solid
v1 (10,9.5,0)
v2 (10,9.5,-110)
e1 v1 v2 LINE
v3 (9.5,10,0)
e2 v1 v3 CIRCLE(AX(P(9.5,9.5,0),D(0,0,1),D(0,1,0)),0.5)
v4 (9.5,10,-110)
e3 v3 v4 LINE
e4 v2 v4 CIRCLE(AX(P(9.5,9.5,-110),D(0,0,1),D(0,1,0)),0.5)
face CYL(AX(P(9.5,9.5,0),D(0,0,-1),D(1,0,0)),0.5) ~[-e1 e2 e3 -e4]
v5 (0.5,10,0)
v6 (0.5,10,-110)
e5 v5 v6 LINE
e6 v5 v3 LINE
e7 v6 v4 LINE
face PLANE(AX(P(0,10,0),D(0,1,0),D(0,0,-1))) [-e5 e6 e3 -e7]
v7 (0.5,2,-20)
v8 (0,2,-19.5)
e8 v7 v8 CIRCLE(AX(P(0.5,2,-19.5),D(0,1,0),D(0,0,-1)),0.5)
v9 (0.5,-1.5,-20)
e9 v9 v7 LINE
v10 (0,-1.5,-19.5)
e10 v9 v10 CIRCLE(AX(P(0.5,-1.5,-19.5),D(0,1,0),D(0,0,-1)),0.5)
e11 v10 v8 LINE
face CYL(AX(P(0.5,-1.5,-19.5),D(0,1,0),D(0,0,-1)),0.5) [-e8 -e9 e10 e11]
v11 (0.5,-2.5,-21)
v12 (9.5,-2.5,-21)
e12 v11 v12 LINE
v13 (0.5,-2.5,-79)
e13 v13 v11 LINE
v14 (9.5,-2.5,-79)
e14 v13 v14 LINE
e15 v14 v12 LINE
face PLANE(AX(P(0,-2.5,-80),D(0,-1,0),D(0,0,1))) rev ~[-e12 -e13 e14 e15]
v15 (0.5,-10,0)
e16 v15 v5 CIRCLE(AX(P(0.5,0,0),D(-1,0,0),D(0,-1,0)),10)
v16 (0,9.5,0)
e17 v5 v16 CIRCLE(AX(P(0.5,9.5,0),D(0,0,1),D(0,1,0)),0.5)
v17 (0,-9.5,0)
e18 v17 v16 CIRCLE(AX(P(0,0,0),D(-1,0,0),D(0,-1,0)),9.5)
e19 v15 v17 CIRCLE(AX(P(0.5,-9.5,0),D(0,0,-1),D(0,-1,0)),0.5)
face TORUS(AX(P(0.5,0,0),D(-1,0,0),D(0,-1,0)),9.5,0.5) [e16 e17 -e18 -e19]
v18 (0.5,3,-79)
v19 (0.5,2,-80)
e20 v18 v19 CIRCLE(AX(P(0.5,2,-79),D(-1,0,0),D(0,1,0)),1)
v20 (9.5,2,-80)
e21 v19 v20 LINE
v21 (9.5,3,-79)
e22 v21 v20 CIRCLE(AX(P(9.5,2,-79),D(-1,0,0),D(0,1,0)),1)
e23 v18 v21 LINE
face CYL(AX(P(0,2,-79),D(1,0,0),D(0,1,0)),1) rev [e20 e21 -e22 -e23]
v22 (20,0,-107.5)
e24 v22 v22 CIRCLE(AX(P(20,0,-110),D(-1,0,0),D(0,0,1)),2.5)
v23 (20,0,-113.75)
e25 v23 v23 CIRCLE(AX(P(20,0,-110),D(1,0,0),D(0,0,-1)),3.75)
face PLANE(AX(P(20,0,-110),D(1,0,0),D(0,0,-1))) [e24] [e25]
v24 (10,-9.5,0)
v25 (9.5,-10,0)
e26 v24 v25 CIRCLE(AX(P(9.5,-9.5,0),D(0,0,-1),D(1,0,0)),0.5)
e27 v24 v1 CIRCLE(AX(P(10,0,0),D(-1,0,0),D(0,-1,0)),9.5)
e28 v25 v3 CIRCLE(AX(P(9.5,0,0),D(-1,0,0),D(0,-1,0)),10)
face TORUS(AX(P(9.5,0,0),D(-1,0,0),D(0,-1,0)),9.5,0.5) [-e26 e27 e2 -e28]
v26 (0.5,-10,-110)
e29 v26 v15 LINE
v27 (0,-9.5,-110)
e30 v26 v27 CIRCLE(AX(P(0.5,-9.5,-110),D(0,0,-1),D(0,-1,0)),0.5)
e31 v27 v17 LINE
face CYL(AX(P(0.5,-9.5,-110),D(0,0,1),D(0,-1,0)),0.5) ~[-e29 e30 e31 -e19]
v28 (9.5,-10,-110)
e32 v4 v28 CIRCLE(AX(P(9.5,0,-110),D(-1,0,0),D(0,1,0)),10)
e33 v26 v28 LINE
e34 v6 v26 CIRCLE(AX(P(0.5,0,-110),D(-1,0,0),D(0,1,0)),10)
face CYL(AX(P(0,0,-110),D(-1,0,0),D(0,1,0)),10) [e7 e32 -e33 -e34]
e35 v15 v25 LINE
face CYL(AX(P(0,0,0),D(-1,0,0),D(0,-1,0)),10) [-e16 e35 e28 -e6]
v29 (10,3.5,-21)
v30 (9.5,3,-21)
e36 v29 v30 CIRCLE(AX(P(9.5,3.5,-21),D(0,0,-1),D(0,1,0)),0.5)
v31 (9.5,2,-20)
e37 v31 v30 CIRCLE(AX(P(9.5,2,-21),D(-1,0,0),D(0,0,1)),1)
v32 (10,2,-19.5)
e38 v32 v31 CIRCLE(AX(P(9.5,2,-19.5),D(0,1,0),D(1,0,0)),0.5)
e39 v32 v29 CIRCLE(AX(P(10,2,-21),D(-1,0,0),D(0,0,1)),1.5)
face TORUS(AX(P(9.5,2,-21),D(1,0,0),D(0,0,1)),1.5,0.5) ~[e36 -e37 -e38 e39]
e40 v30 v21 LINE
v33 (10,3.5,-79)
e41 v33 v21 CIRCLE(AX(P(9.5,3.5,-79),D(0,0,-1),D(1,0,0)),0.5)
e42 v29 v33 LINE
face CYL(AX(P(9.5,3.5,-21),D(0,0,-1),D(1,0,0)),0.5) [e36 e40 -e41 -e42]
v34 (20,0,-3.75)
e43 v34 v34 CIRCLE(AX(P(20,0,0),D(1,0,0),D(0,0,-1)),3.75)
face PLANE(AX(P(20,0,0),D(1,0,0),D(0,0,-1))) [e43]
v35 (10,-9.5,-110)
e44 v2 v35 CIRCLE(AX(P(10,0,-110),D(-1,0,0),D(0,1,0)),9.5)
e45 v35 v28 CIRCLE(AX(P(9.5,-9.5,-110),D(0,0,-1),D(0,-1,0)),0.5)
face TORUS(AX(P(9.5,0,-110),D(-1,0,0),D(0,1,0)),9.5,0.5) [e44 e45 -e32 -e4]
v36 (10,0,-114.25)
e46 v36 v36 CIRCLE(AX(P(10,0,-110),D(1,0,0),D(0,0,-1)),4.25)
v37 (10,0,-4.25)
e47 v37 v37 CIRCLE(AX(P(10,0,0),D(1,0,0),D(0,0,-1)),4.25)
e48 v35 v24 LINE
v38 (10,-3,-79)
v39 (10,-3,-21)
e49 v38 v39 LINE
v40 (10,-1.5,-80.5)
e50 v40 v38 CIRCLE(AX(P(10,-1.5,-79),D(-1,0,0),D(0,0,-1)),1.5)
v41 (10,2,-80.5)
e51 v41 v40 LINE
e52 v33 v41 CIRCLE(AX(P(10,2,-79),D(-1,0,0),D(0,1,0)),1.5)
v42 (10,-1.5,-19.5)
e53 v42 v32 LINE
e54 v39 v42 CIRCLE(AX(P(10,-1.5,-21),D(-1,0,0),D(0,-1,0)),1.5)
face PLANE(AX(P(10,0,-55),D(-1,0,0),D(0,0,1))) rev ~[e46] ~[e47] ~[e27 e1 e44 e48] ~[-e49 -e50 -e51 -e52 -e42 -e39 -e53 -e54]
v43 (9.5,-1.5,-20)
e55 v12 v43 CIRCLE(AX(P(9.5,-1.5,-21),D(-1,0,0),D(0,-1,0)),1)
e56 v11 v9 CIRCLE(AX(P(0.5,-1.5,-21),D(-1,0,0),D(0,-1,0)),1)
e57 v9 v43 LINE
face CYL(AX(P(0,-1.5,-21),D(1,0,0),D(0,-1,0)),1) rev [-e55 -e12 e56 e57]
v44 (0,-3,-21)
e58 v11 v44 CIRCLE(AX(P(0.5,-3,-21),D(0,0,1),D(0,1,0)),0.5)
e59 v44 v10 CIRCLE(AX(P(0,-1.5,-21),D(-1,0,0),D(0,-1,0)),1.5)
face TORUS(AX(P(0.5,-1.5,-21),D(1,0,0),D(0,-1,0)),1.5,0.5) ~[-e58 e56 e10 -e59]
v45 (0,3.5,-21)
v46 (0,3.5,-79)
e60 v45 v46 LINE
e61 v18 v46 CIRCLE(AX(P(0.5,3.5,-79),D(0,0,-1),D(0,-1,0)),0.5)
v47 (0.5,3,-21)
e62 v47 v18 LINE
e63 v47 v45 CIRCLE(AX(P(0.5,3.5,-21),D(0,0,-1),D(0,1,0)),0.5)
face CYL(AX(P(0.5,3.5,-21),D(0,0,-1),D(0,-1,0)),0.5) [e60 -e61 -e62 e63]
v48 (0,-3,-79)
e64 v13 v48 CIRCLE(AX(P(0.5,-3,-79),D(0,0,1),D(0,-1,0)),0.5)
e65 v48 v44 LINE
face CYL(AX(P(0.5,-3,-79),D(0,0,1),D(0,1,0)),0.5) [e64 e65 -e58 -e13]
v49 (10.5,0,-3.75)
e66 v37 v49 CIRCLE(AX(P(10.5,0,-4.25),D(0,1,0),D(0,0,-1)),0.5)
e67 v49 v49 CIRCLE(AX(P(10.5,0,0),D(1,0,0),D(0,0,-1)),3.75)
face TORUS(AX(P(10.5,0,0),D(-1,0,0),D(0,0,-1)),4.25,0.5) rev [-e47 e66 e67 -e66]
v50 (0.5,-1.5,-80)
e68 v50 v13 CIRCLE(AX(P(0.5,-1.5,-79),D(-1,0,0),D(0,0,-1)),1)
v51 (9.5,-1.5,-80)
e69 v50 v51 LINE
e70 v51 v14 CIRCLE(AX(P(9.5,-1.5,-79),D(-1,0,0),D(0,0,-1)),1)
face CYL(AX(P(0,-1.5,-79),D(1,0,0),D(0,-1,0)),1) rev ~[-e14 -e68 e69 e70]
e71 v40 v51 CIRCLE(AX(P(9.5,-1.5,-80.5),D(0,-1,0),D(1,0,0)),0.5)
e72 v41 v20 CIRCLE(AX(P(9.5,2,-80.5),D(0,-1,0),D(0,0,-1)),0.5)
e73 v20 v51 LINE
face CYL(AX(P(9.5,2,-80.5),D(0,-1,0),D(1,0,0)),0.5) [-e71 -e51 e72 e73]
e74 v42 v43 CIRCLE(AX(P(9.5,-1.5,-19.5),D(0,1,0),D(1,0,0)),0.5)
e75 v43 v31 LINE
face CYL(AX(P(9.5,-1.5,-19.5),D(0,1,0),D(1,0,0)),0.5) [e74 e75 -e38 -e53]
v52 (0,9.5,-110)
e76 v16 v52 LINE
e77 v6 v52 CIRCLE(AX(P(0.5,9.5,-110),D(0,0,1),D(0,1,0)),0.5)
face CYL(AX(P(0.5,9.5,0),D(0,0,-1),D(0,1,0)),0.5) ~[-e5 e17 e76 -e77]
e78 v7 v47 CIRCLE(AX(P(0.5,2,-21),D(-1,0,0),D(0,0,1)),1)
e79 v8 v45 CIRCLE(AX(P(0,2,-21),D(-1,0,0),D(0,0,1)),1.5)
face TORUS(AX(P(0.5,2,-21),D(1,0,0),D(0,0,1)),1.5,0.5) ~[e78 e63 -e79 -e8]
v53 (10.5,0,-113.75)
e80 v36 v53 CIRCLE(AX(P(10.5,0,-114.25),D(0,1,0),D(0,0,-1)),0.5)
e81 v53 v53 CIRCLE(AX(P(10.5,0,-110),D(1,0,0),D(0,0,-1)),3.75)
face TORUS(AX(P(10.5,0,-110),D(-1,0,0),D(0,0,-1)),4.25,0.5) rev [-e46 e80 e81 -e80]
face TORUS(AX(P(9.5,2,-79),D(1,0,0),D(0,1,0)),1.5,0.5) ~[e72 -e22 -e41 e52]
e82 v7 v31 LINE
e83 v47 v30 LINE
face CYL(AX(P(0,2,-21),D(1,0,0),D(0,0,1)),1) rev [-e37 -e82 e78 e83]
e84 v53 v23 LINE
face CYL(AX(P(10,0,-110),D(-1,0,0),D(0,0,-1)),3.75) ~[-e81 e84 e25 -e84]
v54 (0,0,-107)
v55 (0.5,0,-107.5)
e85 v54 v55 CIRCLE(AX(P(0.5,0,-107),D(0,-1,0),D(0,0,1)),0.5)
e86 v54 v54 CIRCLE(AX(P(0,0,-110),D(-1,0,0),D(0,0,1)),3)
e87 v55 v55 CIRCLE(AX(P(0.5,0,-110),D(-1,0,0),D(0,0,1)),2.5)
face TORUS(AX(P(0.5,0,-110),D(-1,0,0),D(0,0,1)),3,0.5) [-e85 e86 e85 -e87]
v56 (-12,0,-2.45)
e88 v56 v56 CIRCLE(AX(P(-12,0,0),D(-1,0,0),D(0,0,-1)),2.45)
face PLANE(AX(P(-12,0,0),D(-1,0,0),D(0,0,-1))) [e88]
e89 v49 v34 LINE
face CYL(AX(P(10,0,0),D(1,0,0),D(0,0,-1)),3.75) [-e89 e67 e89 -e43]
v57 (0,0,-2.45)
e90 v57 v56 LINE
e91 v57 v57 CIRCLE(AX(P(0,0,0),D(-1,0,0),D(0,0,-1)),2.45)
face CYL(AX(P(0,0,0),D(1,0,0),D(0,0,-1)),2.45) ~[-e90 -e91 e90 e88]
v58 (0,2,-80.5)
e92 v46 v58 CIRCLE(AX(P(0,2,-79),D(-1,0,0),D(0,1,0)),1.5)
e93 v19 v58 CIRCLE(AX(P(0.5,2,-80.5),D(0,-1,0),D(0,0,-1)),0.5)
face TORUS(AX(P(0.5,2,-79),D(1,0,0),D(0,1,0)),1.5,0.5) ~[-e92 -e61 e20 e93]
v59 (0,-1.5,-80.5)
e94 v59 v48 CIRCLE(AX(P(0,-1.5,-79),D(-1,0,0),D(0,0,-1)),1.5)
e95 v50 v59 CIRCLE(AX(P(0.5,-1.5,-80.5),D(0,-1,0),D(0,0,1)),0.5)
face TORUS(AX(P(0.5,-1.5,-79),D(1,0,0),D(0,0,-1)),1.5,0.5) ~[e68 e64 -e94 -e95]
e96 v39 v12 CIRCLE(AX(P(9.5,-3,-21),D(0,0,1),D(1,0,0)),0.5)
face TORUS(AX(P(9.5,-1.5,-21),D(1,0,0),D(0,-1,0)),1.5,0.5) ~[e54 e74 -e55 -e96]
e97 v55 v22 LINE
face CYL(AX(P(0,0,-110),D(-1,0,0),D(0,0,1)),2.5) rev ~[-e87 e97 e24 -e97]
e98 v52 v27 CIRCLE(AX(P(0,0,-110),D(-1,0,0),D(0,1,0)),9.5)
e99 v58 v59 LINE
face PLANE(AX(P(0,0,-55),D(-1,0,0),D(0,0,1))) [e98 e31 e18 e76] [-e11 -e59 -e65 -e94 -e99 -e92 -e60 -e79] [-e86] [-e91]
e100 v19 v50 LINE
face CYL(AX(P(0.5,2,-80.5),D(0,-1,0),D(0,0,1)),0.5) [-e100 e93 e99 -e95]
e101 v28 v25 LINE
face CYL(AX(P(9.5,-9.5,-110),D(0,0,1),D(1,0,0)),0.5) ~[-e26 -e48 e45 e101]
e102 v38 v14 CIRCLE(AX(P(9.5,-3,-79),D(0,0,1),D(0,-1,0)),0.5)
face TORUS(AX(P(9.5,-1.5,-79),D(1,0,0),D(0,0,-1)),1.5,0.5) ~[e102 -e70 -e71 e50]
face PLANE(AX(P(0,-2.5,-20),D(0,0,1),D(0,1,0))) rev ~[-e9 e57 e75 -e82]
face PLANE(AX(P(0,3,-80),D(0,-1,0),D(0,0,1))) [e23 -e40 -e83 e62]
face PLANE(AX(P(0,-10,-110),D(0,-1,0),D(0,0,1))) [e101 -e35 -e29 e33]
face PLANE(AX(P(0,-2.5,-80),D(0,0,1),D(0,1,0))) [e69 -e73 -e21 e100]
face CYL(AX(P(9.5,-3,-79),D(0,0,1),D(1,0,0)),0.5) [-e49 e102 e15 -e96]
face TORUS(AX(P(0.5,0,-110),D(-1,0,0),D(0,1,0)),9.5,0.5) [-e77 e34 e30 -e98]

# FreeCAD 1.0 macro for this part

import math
import FreeCAD as App
import Part
import Sketcher
from FreeCAD import Vector


def edges_at(feature, points):
    """Names of the edges that pass closest to the given points."""
    edges = feature.Shape.Edges
    near = lambda p: min(range(len(edges)), key=lambda i: edges[i].distToShape(Part.Vertex(*p))[0])
    return sorted({f"Edge{near(p) + 1}" for p in points})


def add_polygon(sketch, points):
    """Adds a closed chain of lines whose ends are joined by coincident constraints."""
    first, n = sketch.GeometryCount, len(points)
    for a, b in zip(points, points[1:] + points[:1]):
        sketch.addGeometry(Part.LineSegment(App.Vector(*a, 0), App.Vector(*b, 0)), False)
    for i in range(n):
        sketch.addConstraint(Sketcher.Constraint("Coincident", first + i, 2, first + (i + 1) % n, 1))

doc = App.newDocument("Part")
params = doc.addObject("Spreadsheet::Sheet", "Params")
for row, (alias, value) in enumerate([
    ("sketch1_radius", "10 mm"),
    ("sketch1_diameter", "7.5 mm"),
    ("sketch1_height", "110 mm"),
    ("pad1_length", "10 mm"),
    ("sketch2_diameter", "7.5 mm"),
    ("pad2_length", "20 mm"),
    ("sketch3_diameter", "5 mm"),
    ("sketch4_height", "60 mm"),
    ("sketch4_width", "5.5 mm"),
    ("pocket2_length", "10 mm"),
    ("fillet_radius", "1 mm"),
    ("fillet2_radius", "0.5 mm"),
    ("sketch5_diameter", "4.9 mm"),
    ("pad3_length", "12 mm"),
], start=1):
    params.set(f"A{row}", alias)
    params.set(f"B{row}", "=" + value)
    params.setAlias(f"B{row}", alias)

body = doc.addObject("PartDesign::Body", "Body")

sketch1 = body.newObject("Sketcher::SketchObject", "Sketch")
sketch1.AttachmentSupport = (doc.getObject("YZ_Plane"), [""])
sketch1.MapMode = "FlatFace"
sketch1.addGeometry([
    Part.LineSegment(Vector(10, -110, 0), Vector(10, 0, 0)),
    Part.ArcOfCircle(Part.Circle(Vector(0, 0, 0), Vector(0, 0, 1), 10), math.radians(0), math.radians(180)),
    Part.LineSegment(Vector(-10, 0, 0), Vector(-10, -110, 0)),
    Part.ArcOfCircle(Part.Circle(Vector(0, -110, 0), Vector(0, 0, 1), 10), math.radians(180), math.radians(360)),
    Part.Circle(Vector(0, -110, 0), Vector(0, 0, 1), 3.8),
    Part.Circle(Vector(0, 0, 0), Vector(0, 0, 1), 3.8),
], False)
sketch1.addConstraint([
    Sketcher.Constraint("Tangent", 0, 2, 1, 1),
    Sketcher.Constraint("Tangent", 1, 2, 2, 1),
    Sketcher.Constraint("Tangent", 2, 2, 3, 1),
    Sketcher.Constraint("Tangent", 3, 2, 0, 1),
    Sketcher.Constraint("Vertical", 0),
    Sketcher.Constraint("Vertical", 2),
    Sketcher.Constraint("Coincident", 1, 3, -1, 1),
    Sketcher.Constraint("Coincident", 5, 3, -1, 1),
    Sketcher.Constraint("Coincident", 4, 3, 3, 3),
    Sketcher.Constraint("Equal", 4, 5),
    Sketcher.Constraint("Radius", 1, 10.0),
    Sketcher.Constraint("Diameter", 4, 7.5),
    Sketcher.Constraint("DistanceY", 0, 1, 0, 2, 110.0),
])
sketch1.setExpression("Constraints[10]", "Params.sketch1_radius")
sketch1.setExpression("Constraints[11]", "Params.sketch1_diameter")
sketch1.setExpression("Constraints[12]", "Params.sketch1_height")
pad1 = body.newObject("PartDesign::Pad", "Pad")
pad1.Profile = sketch1
pad1.setExpression("Length", "Params.pad1_length")

sketch2 = body.newObject("Sketcher::SketchObject", "Sketch001")
sketch2.AttachmentSupport = (doc.getObject("YZ_Plane"), [""])
sketch2.MapMode = "FlatFace"
sketch2.AttachmentOffset = App.Placement(Vector(0, 0, 10), App.Rotation())
sketch2.addGeometry([
    Part.Circle(Vector(0, -110, 0), Vector(0, 0, 1), 3.8),
    Part.Circle(Vector(0, 0, 0), Vector(0, 0, 1), 3.8),
], False)
sketch2.addConstraint([
    Sketcher.Constraint("Coincident", 1, 3, -1, 1),
    Sketcher.Constraint("Equal", 0, 1),
    Sketcher.Constraint("PointOnObject", 0, 3, -2),
    Sketcher.Constraint("Diameter", 0, 7.5),
    Sketcher.Constraint("DistanceY", 0, 3, -1, 1, 110.0),
])
sketch2.setExpression("Constraints[3]", "Params.sketch2_diameter")
pad2 = body.newObject("PartDesign::Pad", "Pad001")
pad2.Profile = sketch2
pad2.setExpression("Length", "Params.pad2_length")
pad2.Midplane = True

sketch3 = body.newObject("Sketcher::SketchObject", "Sketch002")
sketch3.AttachmentSupport = (doc.getObject("YZ_Plane"), [""])
sketch3.MapMode = "FlatFace"
sketch3.addGeometry(Part.Circle(Vector(0, -110, 0), Vector(0, 0, 1), 2.5), False)
sketch3.addConstraint([
    Sketcher.Constraint("PointOnObject", 0, 3, -2),
    Sketcher.Constraint("Diameter", 0, 5.0),
    Sketcher.Constraint("DistanceY", 0, 3, -1, 1, 110.0),
])
sketch3.setExpression("Constraints[1]", "Params.sketch3_diameter")
pocket1 = body.newObject("PartDesign::Pocket", "Pocket")
pocket1.Profile = sketch3
pocket1.Type = "ThroughAll"
pocket1.Reversed = True

sketch4 = body.newObject("Sketcher::SketchObject", "Sketch003")
sketch4.AttachmentSupport = (doc.getObject("YZ_Plane"), [""])
sketch4.MapMode = "FlatFace"
add_polygon(sketch4, [(3, -80), (-2, -80), (-2, -20), (3, -20)])
sketch4.addConstraint([
    Sketcher.Constraint("Horizontal", 0),
    Sketcher.Constraint("Vertical", 1),
    Sketcher.Constraint("Horizontal", 2),
    Sketcher.Constraint("Vertical", 3),
    Sketcher.Constraint("DistanceY", 1, 1, 1, 2, 60.0),
    Sketcher.Constraint("DistanceX", 0, 2, 0, 1, 5.5),
    Sketcher.Constraint("DistanceY", 0, 2, -1, 1, 80.0),
    Sketcher.Constraint("DistanceX", -1, 1, 2, 2, 3.0),
])
sketch4.setExpression("Constraints[8]", "Params.sketch4_height")
sketch4.setExpression("Constraints[9]", "Params.sketch4_width")
pocket2 = body.newObject("PartDesign::Pocket", "Pocket001")
pocket2.Profile = sketch4
pocket2.setExpression("Length", "Params.pocket2_length")
pocket2.Reversed = True
doc.recompute()

fillet = body.newObject("PartDesign::Fillet", "Fillet")
fillet.Base = (pocket2, edges_at(pocket2, [
    (5, -2.5, -80),
    (5, 3, -80),
    (5, 3, -20),
    (5, -2.5, -20),
]))
fillet.setExpression("Radius", "Params.fillet_radius")
doc.recompute()

fillet2 = body.newObject("PartDesign::Fillet", "Fillet001")
fillet2.Base = (fillet, edges_at(fillet, [
    (10, 0, 3.75),
    (10, 0, -120),
    (10, 0, -106.25),
    (10, 10, -55),
    (0, 0, -112.5),
    (10, 0, 10),
    (0, 10, -55),
    (0, 0, -120),
    (0, 0.25, -20),
    (10, 0.25, -20),
    (0, -10, -55),
    (0, -2.5, -50),
    (10, -2.5, -50),
    (0, 3, -50),
    (0, 0, 10),
    (10, 3, -50),
    (0, 0.25, -80),
    (10, 0.25, -80),
    (0, -2.207, -20.293),
    (10, -2.207, -20.293),
    (0, 2.707, -20.293),
    (10, 2.707, -20.293),
    (0, 2.707, -79.707),
    (10, 2.707, -79.707),
    (0, -2.207, -79.707),
    (10, -2.207, -79.707),
    (10, -10, -55),
]))
fillet2.setExpression("Radius", "Params.fillet2_radius")

sketch5 = body.newObject("Sketcher::SketchObject", "Sketch004")
sketch5.AttachmentSupport = (doc.getObject("YZ_Plane"), [""])
sketch5.MapMode = "FlatFace"
sketch5.addGeometry(Part.Circle(Vector(0, 0, 0), Vector(0, 0, 1), 2.5), False)
sketch5.addConstraint([
    Sketcher.Constraint("Coincident", 0, 3, -1, 1),
    Sketcher.Constraint("Diameter", 0, 4.9),
])
sketch5.setExpression("Constraints[1]", "Params.sketch5_diameter")
pad3 = body.newObject("PartDesign::Pad", "Pad002")
pad3.Profile = sketch5
pad3.setExpression("Length", "Params.pad3_length")
pad3.Reversed = True

doc.recompute()
